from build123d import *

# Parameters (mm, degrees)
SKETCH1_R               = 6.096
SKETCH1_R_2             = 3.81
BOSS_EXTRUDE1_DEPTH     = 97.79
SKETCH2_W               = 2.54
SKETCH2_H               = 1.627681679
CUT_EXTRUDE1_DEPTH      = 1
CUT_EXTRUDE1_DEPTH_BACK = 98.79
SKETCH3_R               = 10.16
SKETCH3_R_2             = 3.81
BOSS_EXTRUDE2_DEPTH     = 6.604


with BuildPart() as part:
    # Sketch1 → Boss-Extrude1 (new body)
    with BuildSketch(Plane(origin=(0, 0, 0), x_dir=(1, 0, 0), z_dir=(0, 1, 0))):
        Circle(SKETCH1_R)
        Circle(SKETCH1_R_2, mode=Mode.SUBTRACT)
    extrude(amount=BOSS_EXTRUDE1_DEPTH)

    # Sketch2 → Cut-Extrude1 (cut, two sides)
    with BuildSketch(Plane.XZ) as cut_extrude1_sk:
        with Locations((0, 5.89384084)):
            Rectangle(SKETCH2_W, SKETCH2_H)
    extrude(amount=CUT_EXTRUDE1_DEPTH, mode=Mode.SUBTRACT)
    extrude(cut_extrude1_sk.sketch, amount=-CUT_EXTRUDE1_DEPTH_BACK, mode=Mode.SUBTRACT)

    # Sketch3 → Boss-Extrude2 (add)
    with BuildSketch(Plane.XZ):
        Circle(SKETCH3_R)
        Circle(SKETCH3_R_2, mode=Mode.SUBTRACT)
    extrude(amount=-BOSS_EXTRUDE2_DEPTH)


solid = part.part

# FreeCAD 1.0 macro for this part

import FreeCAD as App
import Part
import Sketcher
Q = App.Units.Quantity

doc = App.newDocument("Part")
body = doc.addObject("PartDesign::Body", "Body")

# Sketch on XZ plane
sketch1 = body.newObject("Sketcher::SketchObject", "Sketch")
sketch1.AttachmentSupport = (doc.getObject("XZ_Plane"), [""])
sketch1.MapMode = "FlatFace"
sketch1.addGeometry([
    Part.Circle(App.Vector(0, 0, 0), App.Vector(0, 0, 1), 6.096),
    Part.Circle(App.Vector(0, 0, 0), App.Vector(0, 0, 1), 3.81),
], False)
sketch1.addConstraint([
    Sketcher.Constraint("Coincident", 0, 3, -1, 1),
    Sketcher.Constraint("Coincident", 1, 3, -1, 1),
    Sketcher.Constraint("Diameter", 1, Q("0.3 in")),
    Sketcher.Constraint("Diameter", 0, Q("0.48 in")),
])
pad1 = body.newObject("PartDesign::Pad", "Pad")
pad1.Profile = sketch1
pad1.Length = Q("3.85 in")
pad1.Reversed = True

# Sketch on XZ plane
sketch2 = body.newObject("Sketcher::SketchObject", "Sketch001")
sketch2.AttachmentSupport = (doc.getObject("XZ_Plane"), [""])
sketch2.MapMode = "FlatFace"
sketch2.addGeometry([
    Part.LineSegment(App.Vector(-1.27, 6.707682, 0), App.Vector(-1.27, 5.08, 0)),
    Part.LineSegment(App.Vector(-1.27, 5.08, 0), App.Vector(1.27, 5.08, 0)),
    Part.LineSegment(App.Vector(1.27, 5.08, 0), App.Vector(1.27, 6.707682, 0)),
    Part.LineSegment(App.Vector(1.27, 6.707682, 0), App.Vector(-1.27, 6.707682, 0)),
], False)
sketch2.addConstraint([
    Sketcher.Constraint("Coincident", 0, 2, 1, 1),
    Sketcher.Constraint("Coincident", 1, 2, 2, 1),
    Sketcher.Constraint("Coincident", 2, 2, 3, 1),
    Sketcher.Constraint("Coincident", 3, 2, 0, 1),
    Sketcher.Constraint("Vertical", 0),
    Sketcher.Constraint("Horizontal", 1),
    Sketcher.Constraint("Vertical", 2),
    Sketcher.Constraint("Horizontal", 3),
    Sketcher.Constraint("DistanceX", 1, 1, 1, 2, Q("0.1 in")),
    Sketcher.Constraint("DistanceY", -1, 1, 0, 2, Q("0.2 in")),
    Sketcher.Constraint("DistanceX", 0, 2, -1, 1, Q("0.05 in")),
    Sketcher.Constraint("DistanceY", 0, 2, 0, 1, 1.627682),
])
pocket1 = body.newObject("PartDesign::Pocket", "Pocket")
pocket1.Profile = sketch2
pocket1.Type = "ThroughAll"
pocket1.Midplane = True

# Sketch on XZ plane
sketch3 = body.newObject("Sketcher::SketchObject", "Sketch002")
sketch3.AttachmentSupport = (doc.getObject("XZ_Plane"), [""])
sketch3.MapMode = "FlatFace"
sketch3.addGeometry([
    Part.Circle(App.Vector(0, 0, 0), App.Vector(0, 0, 1), 10.16),
    Part.Circle(App.Vector(0, 0, 0), App.Vector(0, 0, 1), 3.81),
], False)
sketch3.addConstraint([
    Sketcher.Constraint("Coincident", 0, 3, -1, 1),
    Sketcher.Constraint("Coincident", 1, 3, -1, 1),
    Sketcher.Constraint("Diameter", 0, Q("0.8 in")),
    Sketcher.Constraint("Diameter", 1, Q("0.3 in")),
])
pad2 = body.newObject("PartDesign::Pad", "Pad001")
pad2.Profile = sketch3
pad2.Length = Q("0.26 in")
pad2.Reversed = True

doc.recompute()
